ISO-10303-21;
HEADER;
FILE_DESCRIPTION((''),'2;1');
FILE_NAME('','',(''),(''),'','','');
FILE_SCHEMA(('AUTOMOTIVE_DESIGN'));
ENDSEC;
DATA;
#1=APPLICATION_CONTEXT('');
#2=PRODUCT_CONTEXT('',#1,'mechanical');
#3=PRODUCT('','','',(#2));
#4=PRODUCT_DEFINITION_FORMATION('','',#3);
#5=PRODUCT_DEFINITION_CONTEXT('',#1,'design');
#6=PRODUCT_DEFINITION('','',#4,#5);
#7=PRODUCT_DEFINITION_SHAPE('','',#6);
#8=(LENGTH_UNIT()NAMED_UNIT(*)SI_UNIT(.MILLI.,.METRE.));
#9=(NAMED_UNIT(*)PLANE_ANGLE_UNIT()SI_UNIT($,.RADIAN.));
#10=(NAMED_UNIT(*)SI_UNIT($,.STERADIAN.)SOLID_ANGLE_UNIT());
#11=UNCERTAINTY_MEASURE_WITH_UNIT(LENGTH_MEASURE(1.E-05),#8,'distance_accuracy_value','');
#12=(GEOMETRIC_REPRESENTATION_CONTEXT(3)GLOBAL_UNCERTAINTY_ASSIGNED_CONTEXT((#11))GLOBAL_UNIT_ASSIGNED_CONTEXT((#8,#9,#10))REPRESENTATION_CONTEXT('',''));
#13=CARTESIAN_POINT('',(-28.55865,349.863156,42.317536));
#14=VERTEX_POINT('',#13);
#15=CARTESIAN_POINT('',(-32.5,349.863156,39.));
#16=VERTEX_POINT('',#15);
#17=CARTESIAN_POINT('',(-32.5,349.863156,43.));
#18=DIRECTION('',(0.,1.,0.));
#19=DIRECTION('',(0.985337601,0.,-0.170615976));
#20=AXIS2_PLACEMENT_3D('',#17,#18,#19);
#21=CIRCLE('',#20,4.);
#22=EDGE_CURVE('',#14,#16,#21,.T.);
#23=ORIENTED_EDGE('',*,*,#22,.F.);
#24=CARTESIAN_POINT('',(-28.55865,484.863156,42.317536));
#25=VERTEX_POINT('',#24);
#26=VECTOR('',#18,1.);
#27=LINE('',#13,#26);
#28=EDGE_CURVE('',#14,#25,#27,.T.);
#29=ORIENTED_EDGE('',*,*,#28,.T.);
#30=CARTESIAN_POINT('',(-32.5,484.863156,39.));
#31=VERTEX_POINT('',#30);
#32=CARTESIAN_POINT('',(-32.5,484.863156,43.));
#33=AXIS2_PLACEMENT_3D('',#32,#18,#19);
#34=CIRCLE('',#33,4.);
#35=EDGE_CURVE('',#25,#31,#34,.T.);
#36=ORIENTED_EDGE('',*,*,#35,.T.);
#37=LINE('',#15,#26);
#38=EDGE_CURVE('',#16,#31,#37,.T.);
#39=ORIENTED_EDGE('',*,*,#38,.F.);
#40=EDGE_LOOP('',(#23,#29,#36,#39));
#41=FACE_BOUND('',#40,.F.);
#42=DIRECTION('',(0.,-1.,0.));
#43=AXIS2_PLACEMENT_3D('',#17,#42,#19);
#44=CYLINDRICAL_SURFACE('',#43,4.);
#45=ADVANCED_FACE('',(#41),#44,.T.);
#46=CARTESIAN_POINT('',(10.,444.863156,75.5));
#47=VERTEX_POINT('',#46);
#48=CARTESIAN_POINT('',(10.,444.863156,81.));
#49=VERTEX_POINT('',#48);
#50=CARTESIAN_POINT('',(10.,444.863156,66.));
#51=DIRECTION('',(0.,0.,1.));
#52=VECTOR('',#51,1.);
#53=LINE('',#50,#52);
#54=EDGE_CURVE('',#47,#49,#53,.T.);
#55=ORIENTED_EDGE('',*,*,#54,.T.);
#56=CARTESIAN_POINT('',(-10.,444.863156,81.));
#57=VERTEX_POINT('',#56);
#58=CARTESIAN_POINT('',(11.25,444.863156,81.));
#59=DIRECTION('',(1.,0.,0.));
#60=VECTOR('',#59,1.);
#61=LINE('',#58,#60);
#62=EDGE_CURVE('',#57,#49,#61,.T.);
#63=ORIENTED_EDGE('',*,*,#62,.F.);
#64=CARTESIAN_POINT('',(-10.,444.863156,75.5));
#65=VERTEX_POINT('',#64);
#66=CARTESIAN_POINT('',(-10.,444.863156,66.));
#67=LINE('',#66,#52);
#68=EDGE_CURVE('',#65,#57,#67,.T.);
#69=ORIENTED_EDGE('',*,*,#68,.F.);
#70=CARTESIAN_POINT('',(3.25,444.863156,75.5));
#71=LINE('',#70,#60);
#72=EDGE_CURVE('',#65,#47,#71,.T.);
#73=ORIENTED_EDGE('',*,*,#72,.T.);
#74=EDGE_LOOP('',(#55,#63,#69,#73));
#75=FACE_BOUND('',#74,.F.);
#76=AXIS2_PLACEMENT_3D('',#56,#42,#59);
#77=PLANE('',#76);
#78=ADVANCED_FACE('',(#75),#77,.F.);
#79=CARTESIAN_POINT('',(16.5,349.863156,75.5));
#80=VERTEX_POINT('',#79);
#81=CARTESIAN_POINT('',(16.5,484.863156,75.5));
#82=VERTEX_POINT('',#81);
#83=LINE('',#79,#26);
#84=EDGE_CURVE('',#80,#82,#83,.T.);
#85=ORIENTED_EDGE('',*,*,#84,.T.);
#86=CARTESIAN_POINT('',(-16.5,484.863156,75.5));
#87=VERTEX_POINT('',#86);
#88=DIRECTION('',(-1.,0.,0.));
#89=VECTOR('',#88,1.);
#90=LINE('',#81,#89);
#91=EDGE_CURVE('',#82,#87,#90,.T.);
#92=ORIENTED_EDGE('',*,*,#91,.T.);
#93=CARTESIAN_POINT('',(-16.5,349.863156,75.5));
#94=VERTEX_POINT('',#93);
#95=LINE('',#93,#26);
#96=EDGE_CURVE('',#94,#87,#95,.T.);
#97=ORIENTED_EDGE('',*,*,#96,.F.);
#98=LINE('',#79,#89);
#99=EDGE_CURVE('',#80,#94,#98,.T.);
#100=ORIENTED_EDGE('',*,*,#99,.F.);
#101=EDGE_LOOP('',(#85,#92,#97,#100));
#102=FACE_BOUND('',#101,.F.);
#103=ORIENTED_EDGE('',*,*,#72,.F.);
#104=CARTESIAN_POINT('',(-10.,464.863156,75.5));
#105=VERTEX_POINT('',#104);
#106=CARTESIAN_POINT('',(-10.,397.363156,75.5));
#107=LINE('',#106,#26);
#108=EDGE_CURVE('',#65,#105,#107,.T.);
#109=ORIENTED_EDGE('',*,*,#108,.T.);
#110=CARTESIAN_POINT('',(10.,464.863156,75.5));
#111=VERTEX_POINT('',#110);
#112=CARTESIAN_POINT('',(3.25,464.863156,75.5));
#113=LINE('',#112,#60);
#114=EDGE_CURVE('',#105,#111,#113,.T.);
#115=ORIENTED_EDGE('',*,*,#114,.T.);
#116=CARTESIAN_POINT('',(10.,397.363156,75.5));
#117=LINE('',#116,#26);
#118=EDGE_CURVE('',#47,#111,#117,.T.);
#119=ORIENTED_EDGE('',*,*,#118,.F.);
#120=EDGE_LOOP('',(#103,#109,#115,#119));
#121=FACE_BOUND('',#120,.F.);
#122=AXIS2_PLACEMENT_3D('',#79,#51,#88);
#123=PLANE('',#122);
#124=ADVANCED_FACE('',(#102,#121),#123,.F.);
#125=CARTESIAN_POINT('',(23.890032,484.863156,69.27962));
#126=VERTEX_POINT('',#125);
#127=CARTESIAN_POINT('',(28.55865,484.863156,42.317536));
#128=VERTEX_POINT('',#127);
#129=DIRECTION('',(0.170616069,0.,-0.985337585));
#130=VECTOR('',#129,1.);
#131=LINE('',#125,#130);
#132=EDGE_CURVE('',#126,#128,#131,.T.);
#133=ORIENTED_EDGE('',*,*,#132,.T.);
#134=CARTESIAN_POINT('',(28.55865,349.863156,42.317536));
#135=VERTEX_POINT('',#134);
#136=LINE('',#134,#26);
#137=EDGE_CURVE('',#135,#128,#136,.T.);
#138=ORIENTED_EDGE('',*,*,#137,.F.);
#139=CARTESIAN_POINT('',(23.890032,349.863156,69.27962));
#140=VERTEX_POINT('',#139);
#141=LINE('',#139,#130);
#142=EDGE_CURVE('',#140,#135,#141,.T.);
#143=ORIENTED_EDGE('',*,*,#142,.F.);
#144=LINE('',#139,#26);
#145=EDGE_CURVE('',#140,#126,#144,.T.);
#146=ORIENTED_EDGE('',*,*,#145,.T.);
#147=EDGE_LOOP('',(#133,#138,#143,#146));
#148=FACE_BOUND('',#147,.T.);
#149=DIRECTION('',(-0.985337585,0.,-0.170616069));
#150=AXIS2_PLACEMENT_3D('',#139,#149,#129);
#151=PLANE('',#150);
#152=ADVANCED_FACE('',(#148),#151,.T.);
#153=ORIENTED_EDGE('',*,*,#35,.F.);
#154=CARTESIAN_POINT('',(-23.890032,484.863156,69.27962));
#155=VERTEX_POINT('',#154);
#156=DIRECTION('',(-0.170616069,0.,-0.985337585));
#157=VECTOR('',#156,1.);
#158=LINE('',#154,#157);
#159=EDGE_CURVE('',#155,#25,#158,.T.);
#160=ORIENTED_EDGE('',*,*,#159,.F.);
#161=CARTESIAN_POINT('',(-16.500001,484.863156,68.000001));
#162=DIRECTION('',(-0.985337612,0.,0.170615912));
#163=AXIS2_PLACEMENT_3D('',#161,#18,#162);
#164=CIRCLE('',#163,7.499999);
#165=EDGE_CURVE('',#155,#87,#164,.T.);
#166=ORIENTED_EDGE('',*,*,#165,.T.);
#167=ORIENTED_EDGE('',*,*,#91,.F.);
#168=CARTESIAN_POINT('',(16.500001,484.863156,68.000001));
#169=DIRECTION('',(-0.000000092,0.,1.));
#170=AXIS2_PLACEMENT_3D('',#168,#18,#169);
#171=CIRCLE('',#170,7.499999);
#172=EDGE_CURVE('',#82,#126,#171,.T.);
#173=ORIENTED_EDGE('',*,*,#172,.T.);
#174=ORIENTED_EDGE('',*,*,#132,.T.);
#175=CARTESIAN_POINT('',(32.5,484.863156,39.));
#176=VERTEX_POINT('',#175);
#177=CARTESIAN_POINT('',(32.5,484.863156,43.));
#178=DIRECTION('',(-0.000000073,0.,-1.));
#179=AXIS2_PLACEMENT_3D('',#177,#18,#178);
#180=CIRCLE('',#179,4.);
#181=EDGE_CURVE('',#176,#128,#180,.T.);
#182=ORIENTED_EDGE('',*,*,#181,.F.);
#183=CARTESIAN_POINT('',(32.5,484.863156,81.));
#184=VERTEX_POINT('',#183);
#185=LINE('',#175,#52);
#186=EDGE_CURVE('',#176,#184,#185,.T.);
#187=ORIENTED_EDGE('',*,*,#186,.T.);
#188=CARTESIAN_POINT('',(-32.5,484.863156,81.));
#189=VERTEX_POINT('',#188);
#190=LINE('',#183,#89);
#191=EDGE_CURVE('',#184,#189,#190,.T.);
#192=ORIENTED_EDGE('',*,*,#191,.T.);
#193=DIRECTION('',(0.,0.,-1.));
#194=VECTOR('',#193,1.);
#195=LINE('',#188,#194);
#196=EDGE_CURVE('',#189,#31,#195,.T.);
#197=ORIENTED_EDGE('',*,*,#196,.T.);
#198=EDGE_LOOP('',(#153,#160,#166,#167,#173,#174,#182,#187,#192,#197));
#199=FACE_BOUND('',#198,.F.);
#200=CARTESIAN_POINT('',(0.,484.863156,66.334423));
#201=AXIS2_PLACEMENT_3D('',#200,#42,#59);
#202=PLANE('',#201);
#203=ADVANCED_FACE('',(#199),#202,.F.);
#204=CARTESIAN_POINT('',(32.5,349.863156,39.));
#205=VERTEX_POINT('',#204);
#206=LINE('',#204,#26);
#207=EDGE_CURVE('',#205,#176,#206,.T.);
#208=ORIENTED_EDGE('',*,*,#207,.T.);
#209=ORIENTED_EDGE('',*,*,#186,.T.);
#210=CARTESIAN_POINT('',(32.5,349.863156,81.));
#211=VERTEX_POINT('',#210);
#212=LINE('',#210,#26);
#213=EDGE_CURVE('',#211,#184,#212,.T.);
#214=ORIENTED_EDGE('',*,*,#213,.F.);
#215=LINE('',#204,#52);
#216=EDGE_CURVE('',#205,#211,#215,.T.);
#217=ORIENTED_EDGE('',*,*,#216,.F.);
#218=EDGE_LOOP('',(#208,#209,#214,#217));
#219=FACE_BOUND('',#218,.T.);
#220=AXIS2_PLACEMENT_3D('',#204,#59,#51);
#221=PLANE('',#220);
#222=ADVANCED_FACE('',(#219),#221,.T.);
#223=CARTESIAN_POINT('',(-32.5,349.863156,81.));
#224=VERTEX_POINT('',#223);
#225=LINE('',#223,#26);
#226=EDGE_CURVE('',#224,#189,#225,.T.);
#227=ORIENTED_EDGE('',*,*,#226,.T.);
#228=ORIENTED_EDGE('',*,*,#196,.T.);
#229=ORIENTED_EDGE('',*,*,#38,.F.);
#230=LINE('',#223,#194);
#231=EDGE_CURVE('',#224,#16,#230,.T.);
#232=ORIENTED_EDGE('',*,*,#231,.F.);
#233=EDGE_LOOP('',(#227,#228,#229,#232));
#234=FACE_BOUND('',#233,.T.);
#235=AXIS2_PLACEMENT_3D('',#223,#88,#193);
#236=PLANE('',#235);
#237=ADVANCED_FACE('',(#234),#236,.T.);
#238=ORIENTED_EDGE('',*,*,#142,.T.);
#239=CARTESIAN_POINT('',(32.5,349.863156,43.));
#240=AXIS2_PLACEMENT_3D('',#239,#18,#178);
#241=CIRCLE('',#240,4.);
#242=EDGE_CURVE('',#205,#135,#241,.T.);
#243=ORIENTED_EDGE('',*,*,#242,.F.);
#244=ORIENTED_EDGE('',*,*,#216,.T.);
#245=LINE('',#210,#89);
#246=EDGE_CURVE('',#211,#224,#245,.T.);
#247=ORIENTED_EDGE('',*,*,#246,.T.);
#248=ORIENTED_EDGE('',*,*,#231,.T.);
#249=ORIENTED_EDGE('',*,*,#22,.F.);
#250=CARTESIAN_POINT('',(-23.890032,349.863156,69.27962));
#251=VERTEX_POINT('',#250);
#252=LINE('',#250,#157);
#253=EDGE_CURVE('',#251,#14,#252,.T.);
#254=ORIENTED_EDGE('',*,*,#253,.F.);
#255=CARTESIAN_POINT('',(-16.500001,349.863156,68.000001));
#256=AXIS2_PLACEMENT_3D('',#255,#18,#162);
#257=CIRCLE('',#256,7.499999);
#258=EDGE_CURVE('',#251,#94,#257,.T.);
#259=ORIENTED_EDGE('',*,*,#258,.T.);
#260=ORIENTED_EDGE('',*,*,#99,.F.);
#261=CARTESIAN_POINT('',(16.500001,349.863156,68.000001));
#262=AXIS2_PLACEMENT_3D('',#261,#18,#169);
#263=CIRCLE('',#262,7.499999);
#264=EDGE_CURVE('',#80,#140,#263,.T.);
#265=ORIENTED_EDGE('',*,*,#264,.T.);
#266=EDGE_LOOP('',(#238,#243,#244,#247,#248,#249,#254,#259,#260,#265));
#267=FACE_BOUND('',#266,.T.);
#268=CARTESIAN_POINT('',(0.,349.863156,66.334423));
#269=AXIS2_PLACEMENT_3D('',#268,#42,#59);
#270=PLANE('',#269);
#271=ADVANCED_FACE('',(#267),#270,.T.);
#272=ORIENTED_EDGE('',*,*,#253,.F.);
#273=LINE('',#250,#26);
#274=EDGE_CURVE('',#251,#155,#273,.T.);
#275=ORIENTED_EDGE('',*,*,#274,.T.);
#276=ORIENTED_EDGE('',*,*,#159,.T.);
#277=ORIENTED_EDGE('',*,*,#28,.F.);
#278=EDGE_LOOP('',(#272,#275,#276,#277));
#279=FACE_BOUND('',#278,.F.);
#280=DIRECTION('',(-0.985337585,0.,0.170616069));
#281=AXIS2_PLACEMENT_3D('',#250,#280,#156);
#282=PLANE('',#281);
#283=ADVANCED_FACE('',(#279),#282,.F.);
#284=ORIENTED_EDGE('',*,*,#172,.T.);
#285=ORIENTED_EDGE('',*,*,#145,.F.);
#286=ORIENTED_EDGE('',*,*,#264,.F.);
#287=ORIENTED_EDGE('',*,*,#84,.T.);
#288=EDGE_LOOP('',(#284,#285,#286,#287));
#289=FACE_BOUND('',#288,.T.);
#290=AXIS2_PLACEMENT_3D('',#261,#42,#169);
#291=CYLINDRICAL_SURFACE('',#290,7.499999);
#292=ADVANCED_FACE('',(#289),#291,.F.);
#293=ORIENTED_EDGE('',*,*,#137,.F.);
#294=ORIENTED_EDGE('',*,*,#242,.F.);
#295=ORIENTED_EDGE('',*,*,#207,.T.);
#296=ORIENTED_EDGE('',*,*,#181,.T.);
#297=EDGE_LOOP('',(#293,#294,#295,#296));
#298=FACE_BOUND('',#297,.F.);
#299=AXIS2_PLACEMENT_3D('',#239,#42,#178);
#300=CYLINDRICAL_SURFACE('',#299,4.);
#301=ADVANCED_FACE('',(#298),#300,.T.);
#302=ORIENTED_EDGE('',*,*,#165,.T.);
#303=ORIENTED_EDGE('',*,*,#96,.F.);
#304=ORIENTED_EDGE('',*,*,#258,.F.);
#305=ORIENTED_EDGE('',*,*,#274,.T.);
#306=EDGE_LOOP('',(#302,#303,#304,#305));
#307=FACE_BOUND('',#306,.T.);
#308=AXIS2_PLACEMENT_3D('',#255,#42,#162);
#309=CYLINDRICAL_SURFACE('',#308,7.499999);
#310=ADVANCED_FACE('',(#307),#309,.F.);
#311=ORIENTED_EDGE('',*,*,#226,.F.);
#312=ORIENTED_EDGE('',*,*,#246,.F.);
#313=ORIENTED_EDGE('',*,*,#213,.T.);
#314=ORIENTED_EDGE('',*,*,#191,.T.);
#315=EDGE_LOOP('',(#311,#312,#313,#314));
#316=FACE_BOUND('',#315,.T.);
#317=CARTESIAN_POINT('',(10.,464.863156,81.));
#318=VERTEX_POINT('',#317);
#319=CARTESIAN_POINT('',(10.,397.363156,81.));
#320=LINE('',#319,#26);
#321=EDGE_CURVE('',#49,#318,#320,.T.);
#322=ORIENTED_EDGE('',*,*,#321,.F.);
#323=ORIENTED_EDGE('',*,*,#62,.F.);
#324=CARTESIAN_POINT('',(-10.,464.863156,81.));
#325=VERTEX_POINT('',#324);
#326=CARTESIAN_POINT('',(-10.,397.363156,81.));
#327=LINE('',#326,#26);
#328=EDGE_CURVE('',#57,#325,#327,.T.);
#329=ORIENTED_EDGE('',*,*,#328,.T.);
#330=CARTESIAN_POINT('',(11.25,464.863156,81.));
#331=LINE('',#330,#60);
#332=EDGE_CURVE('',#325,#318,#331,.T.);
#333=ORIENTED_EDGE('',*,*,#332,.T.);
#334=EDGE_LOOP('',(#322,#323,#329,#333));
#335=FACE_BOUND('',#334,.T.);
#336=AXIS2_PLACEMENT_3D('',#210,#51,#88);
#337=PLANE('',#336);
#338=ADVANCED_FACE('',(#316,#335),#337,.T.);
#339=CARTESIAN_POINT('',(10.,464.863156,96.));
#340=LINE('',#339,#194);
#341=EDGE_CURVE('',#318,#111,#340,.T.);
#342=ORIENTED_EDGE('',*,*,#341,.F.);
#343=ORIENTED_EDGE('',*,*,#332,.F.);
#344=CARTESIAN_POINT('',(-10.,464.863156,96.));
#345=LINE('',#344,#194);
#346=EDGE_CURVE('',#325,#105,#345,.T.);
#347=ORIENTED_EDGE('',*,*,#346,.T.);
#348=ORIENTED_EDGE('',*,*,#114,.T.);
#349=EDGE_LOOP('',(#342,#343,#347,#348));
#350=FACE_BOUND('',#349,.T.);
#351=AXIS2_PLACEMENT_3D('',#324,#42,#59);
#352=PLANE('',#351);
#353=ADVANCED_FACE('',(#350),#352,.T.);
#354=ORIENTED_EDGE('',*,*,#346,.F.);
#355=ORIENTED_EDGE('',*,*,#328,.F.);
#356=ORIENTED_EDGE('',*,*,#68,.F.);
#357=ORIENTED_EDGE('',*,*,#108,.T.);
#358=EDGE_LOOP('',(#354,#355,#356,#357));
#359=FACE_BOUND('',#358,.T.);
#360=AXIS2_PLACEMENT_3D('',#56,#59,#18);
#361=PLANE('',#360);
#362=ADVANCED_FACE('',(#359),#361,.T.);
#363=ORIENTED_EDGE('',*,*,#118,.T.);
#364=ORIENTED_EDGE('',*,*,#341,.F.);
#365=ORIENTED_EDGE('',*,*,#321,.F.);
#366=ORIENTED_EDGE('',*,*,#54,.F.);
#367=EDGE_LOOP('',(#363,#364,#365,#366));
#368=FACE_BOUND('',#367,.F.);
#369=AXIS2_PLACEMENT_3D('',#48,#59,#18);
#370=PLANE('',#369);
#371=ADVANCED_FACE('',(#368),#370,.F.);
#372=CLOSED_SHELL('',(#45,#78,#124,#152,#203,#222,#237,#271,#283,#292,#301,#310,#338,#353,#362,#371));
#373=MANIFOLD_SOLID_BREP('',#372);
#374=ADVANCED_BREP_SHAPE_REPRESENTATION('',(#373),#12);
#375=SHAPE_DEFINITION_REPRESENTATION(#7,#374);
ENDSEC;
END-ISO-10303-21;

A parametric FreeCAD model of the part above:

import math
import FreeCAD as App
import Part
import Sketcher

V = App.Vector


def add_polygon(sketch, points):
    """Adds a closed chain of lines whose ends are joined by coincident constraints."""
    first, n = sketch.GeometryCount, len(points)
    for a, b in zip(points, points[1:] + points[:1]):
        sketch.addGeometry(Part.LineSegment(App.Vector(*a, 0), App.Vector(*b, 0)), False)
    for i in range(n):
        sketch.addConstraint(Sketcher.Constraint("Coincident", first + i, 2, first + (i + 1) % n, 1))

doc = App.newDocument("Part")
body = doc.addObject("PartDesign::Body", "Body")

sketch1 = body.newObject("Sketcher::SketchObject", "Sketch")
sketch1.AttachmentSupport = (doc.getObject("XY_Plane"), [""])
sketch1.MapMode = "FlatFace"
sketch1.AttachmentOffset = App.Placement(V(0, 0, 81), App.Rotation())
add_polygon(sketch1, [(-10, 465), (-10, 445), (10, 445), (10, 465)])
sketch1.addConstraint(Sketcher.Constraint("Vertical", 0))
sketch1.addConstraint(Sketcher.Constraint("Horizontal", 1))
sketch1.addConstraint(Sketcher.Constraint("Vertical", 2))
sketch1.addConstraint(Sketcher.Constraint("Horizontal", 3))
sketch1.addConstraint(Sketcher.Constraint("Equal", 3, 0))
sketch1.addConstraint(Sketcher.Constraint("DistanceX", 1, 1, 1, 2, 20.0))
sketch1.addConstraint(Sketcher.Constraint("DistanceX", 0, 2, -1, 1, 10.0))
sketch1.addConstraint(Sketcher.Constraint("DistanceY", -1, 1, 0, 2, 444.863156))
pad1 = body.newObject("PartDesign::Pad", "Pad")
pad1.Profile = sketch1
pad1.Length = 30
pad1.Midplane = True
body2 = doc.addObject("PartDesign::Body", "Body001")

sketch2 = body2.newObject("Sketcher::SketchObject", "Sketch001")
sketch2.AttachmentSupport = (doc.getObject("XZ_Plane001"), [""])
sketch2.MapMode = "FlatFace"
sketch2.AttachmentOffset = App.Placement(V(0, 0, -349.863156), App.Rotation())
sketch2.addGeometry(Part.LineSegment(V(32.5, 81, 0), V(32.5, 39, 0)), False)
sketch2.addGeometry(Part.ArcOfCircle(Part.Circle(V(32.5, 43, 0), V(0, 0, 1), 4), math.radians(-170), math.radians(-90)), False)
sketch2.addGeometry(Part.LineSegment(V(28.6, 42.3, 0), V(23.9, 69.3, 0)), False)
sketch2.addGeometry(Part.ArcOfCircle(Part.Circle(V(16.5, 68, 0), V(0, 0, 1), 7.5), math.radians(10), math.radians(90)), False)
sketch2.addGeometry(Part.LineSegment(V(16.5, 75.5, 0), V(-16.5, 75.5, 0)), False)
sketch2.addGeometry(Part.ArcOfCircle(Part.Circle(V(-16.5, 68, 0), V(0, 0, 1), 7.5), math.radians(90), math.radians(170)), False)
sketch2.addGeometry(Part.LineSegment(V(-23.9, 69.3, 0), V(-28.6, 42.3, 0)), False)
sketch2.addGeometry(Part.ArcOfCircle(Part.Circle(V(-32.5, 43, 0), V(0, 0, 1), 4), math.radians(-90), math.radians(-10)), False)
sketch2.addGeometry(Part.LineSegment(V(-32.5, 39, 0), V(-32.5, 81, 0)), False)
sketch2.addGeometry(Part.LineSegment(V(-32.5, 81, 0), V(32.5, 81, 0)), False)
sketch2.addConstraint(Sketcher.Constraint("Coincident", 0, 2, 1, 2))
sketch2.addConstraint(Sketcher.Constraint("Tangent", 1, 1, 2, 1))
sketch2.addConstraint(Sketcher.Constraint("Tangent", 2, 2, 3, 1))
sketch2.addConstraint(Sketcher.Constraint("Tangent", 3, 2, 4, 1))
sketch2.addConstraint(Sketcher.Constraint("Tangent", 4, 2, 5, 1))
sketch2.addConstraint(Sketcher.Constraint("Tangent", 5, 2, 6, 1))
sketch2.addConstraint(Sketcher.Constraint("Tangent", 6, 2, 7, 2))
sketch2.addConstraint(Sketcher.Constraint("Coincident", 7, 1, 8, 1))
sketch2.addConstraint(Sketcher.Constraint("Coincident", 8, 2, 9, 1))
sketch2.addConstraint(Sketcher.Constraint("Coincident", 9, 2, 0, 1))
sketch2.addConstraint(Sketcher.Constraint("Vertical", 0))
sketch2.addConstraint(Sketcher.Constraint("Horizontal", 4))
sketch2.addConstraint(Sketcher.Constraint("Vertical", 8))
sketch2.addConstraint(Sketcher.Constraint("Horizontal", 9))
sketch2.addConstraint(Sketcher.Constraint("Equal", 3, 5))
sketch2.addConstraint(Sketcher.Constraint("Equal", 1, 7))
sketch2.addConstraint(Sketcher.Constraint("Symmetric", 1, 3, 7, 3, -2))
sketch2.addConstraint(Sketcher.Constraint("Horizontal", 2, 2, 5, 2))
sketch2.addConstraint(Sketcher.Constraint("Vertical", 1, 3, 0, 2))
sketch2.addConstraint(Sketcher.Constraint("Radius", 1, 4.0))
sketch2.addConstraint(Sketcher.Constraint("Radius", 3, 7.499999))
sketch2.addConstraint(Sketcher.Constraint("DistanceX", 4, 2, 4, 1, 33.0))
sketch2.addConstraint(Sketcher.Constraint("DistanceX", 9, 1, 9, 2, 65.0))
sketch2.addConstraint(Sketcher.Constraint("DistanceY", 0, 2, 0, 1, 42.0))
sketch2.addConstraint(Sketcher.Constraint("DistanceY", -1, 1, 1, 3, 43.0))
sketch2.addConstraint(Sketcher.Constraint("DistanceY", -1, 1, 3, 3, 68.000001))
sketch2.addConstraint(Sketcher.Constraint("DistanceX", 3, 3, 1, 3, 16.0))
pad2 = body2.newObject("PartDesign::Pad", "Pad001")
pad2.Profile = sketch2
pad2.Length = 135
pad2.Reversed = True
doc.recompute()

boolean = body2.newObject("PartDesign::Boolean", "Boolean")
boolean.Type = "Cut"
boolean.addObjects([body])

doc.recompute()
